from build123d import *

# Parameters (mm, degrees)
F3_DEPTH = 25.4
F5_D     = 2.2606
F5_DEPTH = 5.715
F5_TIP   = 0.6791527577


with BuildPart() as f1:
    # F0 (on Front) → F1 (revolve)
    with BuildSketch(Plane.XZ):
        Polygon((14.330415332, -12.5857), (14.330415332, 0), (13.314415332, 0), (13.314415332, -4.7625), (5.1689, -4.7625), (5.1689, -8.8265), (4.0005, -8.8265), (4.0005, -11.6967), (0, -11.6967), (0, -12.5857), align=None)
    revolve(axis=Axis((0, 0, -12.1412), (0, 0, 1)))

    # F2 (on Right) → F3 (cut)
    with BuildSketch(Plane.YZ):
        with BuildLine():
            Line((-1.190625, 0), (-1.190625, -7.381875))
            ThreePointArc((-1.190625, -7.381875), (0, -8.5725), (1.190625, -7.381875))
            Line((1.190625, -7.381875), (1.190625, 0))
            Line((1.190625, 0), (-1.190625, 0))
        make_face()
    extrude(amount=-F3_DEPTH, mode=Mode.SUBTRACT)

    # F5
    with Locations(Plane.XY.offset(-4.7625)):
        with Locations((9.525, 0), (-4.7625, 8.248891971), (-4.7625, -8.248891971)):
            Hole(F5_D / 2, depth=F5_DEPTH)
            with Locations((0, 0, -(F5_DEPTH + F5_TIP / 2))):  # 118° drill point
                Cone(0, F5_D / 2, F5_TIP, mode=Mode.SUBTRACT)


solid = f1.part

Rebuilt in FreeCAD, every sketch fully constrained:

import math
import FreeCAD as App
import Part
import Sketcher

V = App.Vector
Q = App.Units.Quantity

doc = App.newDocument("Part")
body = doc.addObject("PartDesign::Body", "Body")

# Sketch on XZ plane
sketch1 = body.newObject("Sketcher::SketchObject", "Sketch")
sketch1.AttachmentSupport = (doc.getObject("XZ_Plane"), [""])
sketch1.MapMode = "FlatFace"
sketch1.addGeometry(Part.LineSegment(V(14.3, -12.6, 0), V(14.3, 0, 0)), False)
sketch1.addGeometry(Part.LineSegment(V(14.3, 0, 0), V(13.3, 0, 0)), False)
sketch1.addGeometry(Part.LineSegment(V(13.3, 0, 0), V(13.3, -4.8, 0)), False)
sketch1.addGeometry(Part.LineSegment(V(13.3, -4.8, 0), V(5.2, -4.8, 0)), False)
sketch1.addGeometry(Part.LineSegment(V(5.2, -4.8, 0), V(5.2, -8.8, 0)), False)
sketch1.addGeometry(Part.LineSegment(V(5.2, -8.8, 0), V(4, -8.8, 0)), False)
sketch1.addGeometry(Part.LineSegment(V(4, -8.8, 0), V(4, -11.7, 0)), False)
sketch1.addGeometry(Part.LineSegment(V(4, -11.7, 0), V(0, -11.7, 0)), False)
sketch1.addGeometry(Part.LineSegment(V(0, -11.7, 0), V(0, -12.6, 0)), False)
sketch1.addGeometry(Part.LineSegment(V(0, -12.6, 0), V(14.3, -12.6, 0)), False)
sketch1.addConstraint(Sketcher.Constraint("Coincident", 0, 2, 1, 1))
sketch1.addConstraint(Sketcher.Constraint("Coincident", 1, 2, 2, 1))
sketch1.addConstraint(Sketcher.Constraint("Coincident", 2, 2, 3, 1))
sketch1.addConstraint(Sketcher.Constraint("Coincident", 3, 2, 4, 1))
sketch1.addConstraint(Sketcher.Constraint("Coincident", 4, 2, 5, 1))
sketch1.addConstraint(Sketcher.Constraint("Coincident", 5, 2, 6, 1))
sketch1.addConstraint(Sketcher.Constraint("Coincident", 6, 2, 7, 1))
sketch1.addConstraint(Sketcher.Constraint("Coincident", 7, 2, 8, 1))
sketch1.addConstraint(Sketcher.Constraint("Coincident", 8, 2, 9, 1))
sketch1.addConstraint(Sketcher.Constraint("Coincident", 9, 2, 0, 1))
sketch1.addConstraint(Sketcher.Constraint("Vertical", 0))
sketch1.addConstraint(Sketcher.Constraint("Horizontal", 1))
sketch1.addConstraint(Sketcher.Constraint("Vertical", 2))
sketch1.addConstraint(Sketcher.Constraint("Horizontal", 3))
sketch1.addConstraint(Sketcher.Constraint("Vertical", 4))
sketch1.addConstraint(Sketcher.Constraint("Horizontal", 5))
sketch1.addConstraint(Sketcher.Constraint("Vertical", 6))
sketch1.addConstraint(Sketcher.Constraint("Horizontal", 7))
sketch1.addConstraint(Sketcher.Constraint("Vertical", 8))
sketch1.addConstraint(Sketcher.Constraint("Horizontal", 9))
sketch1.addConstraint(Sketcher.Constraint("PointOnObject", 0, 2, -1))
sketch1.addConstraint(Sketcher.Constraint("PointOnObject", 7, 2, -2))
sketch1.addConstraint(Sketcher.Constraint("DistanceX", 1, 2, 1, 1, Q("0.04 in")))
sketch1.addConstraint(Sketcher.Constraint("DistanceY", 4, 2, 4, 1, Q("0.16 in")))
sketch1.addConstraint(Sketcher.Constraint("DistanceX", 5, 2, 5, 1, Q("0.046 in")))
sketch1.addConstraint(Sketcher.Constraint("DistanceY", 2, 2, 2, 1, Q("0.1875 in")))
sketch1.addConstraint(Sketcher.Constraint("DistanceY", 6, 2, 6, 1, Q("0.113 in")))
sketch1.addConstraint(Sketcher.Constraint("DistanceY", 8, 2, 8, 1, Q("0.035 in")))
sketch1.addConstraint(Sketcher.Constraint("DistanceX", 7, 2, 7, 1, Q("0.1575 in")))
sketch1.addConstraint(Sketcher.Constraint("DistanceX", 3, 2, 3, 1, Q("8.145515 mm")))
revolution = body.newObject("PartDesign::Revolution", "Revolution")
revolution.Profile = sketch1
revolution.ReferenceAxis = (sketch1, ["V_Axis"])
revolution.Angle = 360

# Sketch on YZ plane
sketch2 = body.newObject("Sketcher::SketchObject", "Sketch001")
sketch2.AttachmentSupport = (doc.getObject("YZ_Plane"), [""])
sketch2.MapMode = "FlatFace"
sketch2.addGeometry(Part.LineSegment(V(-1.2, 0, 0), V(-1.2, -7.4, 0)), False)
sketch2.addGeometry(Part.ArcOfCircle(Part.Circle(V(0, -7.4, 0), V(0, 0, 1), 1.2), math.radians(180), math.radians(360)), False)
sketch2.addGeometry(Part.LineSegment(V(1.2, -7.4, 0), V(1.2, 0, 0)), False)
sketch2.addGeometry(Part.LineSegment(V(1.2, 0, 0), V(-1.2, 0, 0)), False)
sketch2.addConstraint(Sketcher.Constraint("Tangent", 0, 2, 1, 1))
sketch2.addConstraint(Sketcher.Constraint("Tangent", 1, 2, 2, 1))
sketch2.addConstraint(Sketcher.Constraint("Coincident", 2, 2, 3, 1))
sketch2.addConstraint(Sketcher.Constraint("Coincident", 3, 2, 0, 1))
sketch2.addConstraint(Sketcher.Constraint("Vertical", 0))
sketch2.addConstraint(Sketcher.Constraint("Vertical", 2))
sketch2.addConstraint(Sketcher.Constraint("Horizontal", 3))
sketch2.addConstraint(Sketcher.Constraint("Symmetric", 2, 2, 3, 2, -1, 1))
sketch2.addConstraint(Sketcher.Constraint("Radius", 1, Q("0.046875 in")))
sketch2.addConstraint(Sketcher.Constraint("DistanceY", 0, 2, 0, 1, Q("7.381875 mm")))
pocket1 = body.newObject("PartDesign::Pocket", "Pocket")
pocket1.Profile = sketch2
pocket1.Length = Q("1 in")

# Sketch on XY plane
sketch3 = body.newObject("Sketcher::SketchObject", "Sketch002")
sketch3.AttachmentSupport = (doc.getObject("XY_Plane"), [""])
sketch3.MapMode = "FlatFace"
sketch3.AttachmentOffset = App.Placement(V(0, 0, -0.1875 * 25.4), App.Rotation())
sketch3.addGeometry(Part.Circle(V(9.5, 0, 0), V(0, 0, 1), 1.1), False)
sketch3.addGeometry(Part.Circle(V(-4.8, 8.2, 0), V(0, 0, 1), 1.1), False)
sketch3.addGeometry(Part.Circle(V(-4.8, -8.2, 0), V(0, 0, 1), 1.1), False)
sketch3.addConstraint(Sketcher.Constraint("Equal", 0, 1))
sketch3.addConstraint(Sketcher.Constraint("Equal", 1, 2))
sketch3.addConstraint(Sketcher.Constraint("Symmetric", 1, 3, 2, 3, -1))
sketch3.addConstraint(Sketcher.Constraint("PointOnObject", 0, 3, -1))
sketch3.addConstraint(Sketcher.Constraint("Diameter", 0, Q("0.089 in")))
sketch3.addConstraint(Sketcher.Constraint("DistanceX", -1, 1, 0, 3, Q("0.375 in")))
sketch3.addConstraint(Sketcher.Constraint("DistanceX", 1, 3, -1, 1, Q("0.1875 in")))
sketch3.addConstraint(Sketcher.Constraint("DistanceY", -1, 1, 1, 3, Q("8.248892 mm")))
doc.recompute()
hole = body.newObject("PartDesign::Hole", "Hole")
hole.Profile = sketch3
hole.ThreadType = "None"
hole.Diameter = Q("0.089 in")
hole.DepthType = "Dimension"
hole.Depth = Q("0.225 in")
hole.DrillPoint = "Angled"
hole.DrillPointAngle = 118

doc.recompute()
